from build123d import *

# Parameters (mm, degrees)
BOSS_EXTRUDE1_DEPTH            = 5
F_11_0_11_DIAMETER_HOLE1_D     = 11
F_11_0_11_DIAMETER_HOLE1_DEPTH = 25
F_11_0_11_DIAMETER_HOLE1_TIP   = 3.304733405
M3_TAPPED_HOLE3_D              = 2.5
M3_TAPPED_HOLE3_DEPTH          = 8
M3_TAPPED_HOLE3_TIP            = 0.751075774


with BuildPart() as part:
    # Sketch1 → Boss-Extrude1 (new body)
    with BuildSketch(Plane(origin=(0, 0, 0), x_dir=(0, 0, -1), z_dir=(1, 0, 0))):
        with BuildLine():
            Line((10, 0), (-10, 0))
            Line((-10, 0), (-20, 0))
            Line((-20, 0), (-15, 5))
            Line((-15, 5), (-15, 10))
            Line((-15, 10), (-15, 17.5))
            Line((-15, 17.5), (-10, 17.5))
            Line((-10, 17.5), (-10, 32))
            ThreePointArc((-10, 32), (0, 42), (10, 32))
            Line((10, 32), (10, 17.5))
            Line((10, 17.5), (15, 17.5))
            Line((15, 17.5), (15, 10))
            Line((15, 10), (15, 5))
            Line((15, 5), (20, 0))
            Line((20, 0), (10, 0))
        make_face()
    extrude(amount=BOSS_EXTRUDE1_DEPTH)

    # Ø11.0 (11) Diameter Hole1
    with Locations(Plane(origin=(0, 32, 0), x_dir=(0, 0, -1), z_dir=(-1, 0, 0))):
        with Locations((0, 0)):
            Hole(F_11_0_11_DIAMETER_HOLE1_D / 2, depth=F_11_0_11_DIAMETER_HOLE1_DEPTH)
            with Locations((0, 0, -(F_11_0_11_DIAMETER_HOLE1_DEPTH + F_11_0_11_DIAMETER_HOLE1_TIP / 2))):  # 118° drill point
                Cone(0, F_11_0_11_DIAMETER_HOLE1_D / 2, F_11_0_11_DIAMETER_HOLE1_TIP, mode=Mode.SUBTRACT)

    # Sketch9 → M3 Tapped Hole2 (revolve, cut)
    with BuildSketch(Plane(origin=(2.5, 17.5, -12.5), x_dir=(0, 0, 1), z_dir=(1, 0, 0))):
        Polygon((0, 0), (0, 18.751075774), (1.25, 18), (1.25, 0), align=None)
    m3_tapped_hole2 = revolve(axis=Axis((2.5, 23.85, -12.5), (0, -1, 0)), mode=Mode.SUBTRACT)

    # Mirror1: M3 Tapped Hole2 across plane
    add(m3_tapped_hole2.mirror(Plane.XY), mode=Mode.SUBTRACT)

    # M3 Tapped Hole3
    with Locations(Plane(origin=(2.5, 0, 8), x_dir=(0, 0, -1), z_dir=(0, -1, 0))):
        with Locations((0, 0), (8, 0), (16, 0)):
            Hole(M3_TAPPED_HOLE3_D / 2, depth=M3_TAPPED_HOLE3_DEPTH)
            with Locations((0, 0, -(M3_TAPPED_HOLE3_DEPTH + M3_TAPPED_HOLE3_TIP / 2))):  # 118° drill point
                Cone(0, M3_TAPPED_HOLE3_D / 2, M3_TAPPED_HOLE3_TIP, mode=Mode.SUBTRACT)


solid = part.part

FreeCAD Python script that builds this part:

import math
import FreeCAD as App
import Part
import Sketcher
from FreeCAD import Vector
Q = App.Units.Quantity


def add_polygon(sketch, points):
    """Adds a closed chain of lines whose ends are joined by coincident constraints."""
    first, n = sketch.GeometryCount, len(points)
    for a, b in zip(points, points[1:] + points[:1]):
        sketch.addGeometry(Part.LineSegment(App.Vector(*a, 0), App.Vector(*b, 0)), False)
    for i in range(n):
        sketch.addConstraint(Sketcher.Constraint("Coincident", first + i, 2, first + (i + 1) % n, 1))

doc = App.newDocument("Part")
body = doc.addObject("PartDesign::Body", "Body")

# Sketch on YZ plane
sketch1 = body.newObject("Sketcher::SketchObject", "Sketch")
sketch1.AttachmentSupport = (doc.getObject("YZ_Plane"), [""])
sketch1.MapMode = "FlatFace"
sketch1.addGeometry(Part.LineSegment(Vector(5, 15, 0), Vector(0, 20, 0)), False)
sketch1.addGeometry(Part.LineSegment(Vector(0, 20, 0), Vector(0, -20, 0)), False)
sketch1.addGeometry(Part.LineSegment(Vector(0, -20, 0), Vector(5, -15, 0)), False)
sketch1.addGeometry(Part.LineSegment(Vector(5, -15, 0), Vector(18, -15, 0)), False)
sketch1.addGeometry(Part.LineSegment(Vector(18, -15, 0), Vector(18, -10, 0)), False)
sketch1.addGeometry(Part.LineSegment(Vector(18, -10, 0), Vector(32, -10, 0)), False)
sketch1.addGeometry(Part.ArcOfCircle(Part.Circle(Vector(32, 0, 0), Vector(0, 0, 1), 10), math.radians(-90), math.radians(90)), False)
sketch1.addGeometry(Part.LineSegment(Vector(32, 10, 0), Vector(18, 10, 0)), False)
sketch1.addGeometry(Part.LineSegment(Vector(18, 10, 0), Vector(18, 15, 0)), False)
sketch1.addGeometry(Part.LineSegment(Vector(18, 15, 0), Vector(5, 15, 0)), False)
sketch1.addConstraint(Sketcher.Constraint("Coincident", 0, 2, 1, 1))
sketch1.addConstraint(Sketcher.Constraint("Coincident", 1, 2, 2, 1))
sketch1.addConstraint(Sketcher.Constraint("Coincident", 2, 2, 3, 1))
sketch1.addConstraint(Sketcher.Constraint("Coincident", 3, 2, 4, 1))
sketch1.addConstraint(Sketcher.Constraint("Coincident", 4, 2, 5, 1))
sketch1.addConstraint(Sketcher.Constraint("Tangent", 5, 2, 6, 1))
sketch1.addConstraint(Sketcher.Constraint("Tangent", 6, 2, 7, 1))
sketch1.addConstraint(Sketcher.Constraint("Coincident", 7, 2, 8, 1))
sketch1.addConstraint(Sketcher.Constraint("Coincident", 8, 2, 9, 1))
sketch1.addConstraint(Sketcher.Constraint("Coincident", 9, 2, 0, 1))
sketch1.addConstraint(Sketcher.Constraint("Vertical", 1))
sketch1.addConstraint(Sketcher.Constraint("Horizontal", 3))
sketch1.addConstraint(Sketcher.Constraint("Vertical", 4))
sketch1.addConstraint(Sketcher.Constraint("Horizontal", 5))
sketch1.addConstraint(Sketcher.Constraint("Horizontal", 7))
sketch1.addConstraint(Sketcher.Constraint("Vertical", 8))
sketch1.addConstraint(Sketcher.Constraint("Horizontal", 9))
sketch1.addConstraint(Sketcher.Constraint("Symmetric", 0, 2, 1, 2, -1, 1))
sketch1.addConstraint(Sketcher.Constraint("Symmetric", 4, 2, 7, 2, -1))
sketch1.addConstraint(Sketcher.Constraint("Symmetric", 2, 2, 9, 2, -1))
sketch1.addConstraint(Sketcher.Constraint("Perpendicular", 0, 2))
sketch1.addConstraint(Sketcher.Constraint("Radius", 6, 10.0))
sketch1.addConstraint(Sketcher.Constraint("DistanceY", 1, 2, 1, 1, 40.0))
sketch1.addConstraint(Sketcher.Constraint("DistanceY", 4, 1, 4, 2, 5.0))
sketch1.addConstraint(Sketcher.Constraint("DistanceX", 3, 1, 3, 2, 12.5))
sketch1.addConstraint(Sketcher.Constraint("DistanceX", 5, 1, 5, 2, 14.5))
pad1 = body.newObject("PartDesign::Pad", "Pad")
pad1.Profile = sketch1
pad1.Length = 5

# Sketch on YZ plane
sketch2 = body.newObject("Sketcher::SketchObject", "Sketch001")
sketch2.AttachmentSupport = (doc.getObject("YZ_Plane"), [""])
sketch2.MapMode = "FlatFace"
sketch2.addGeometry(Part.Circle(Vector(32, 0, 0), Vector(0, 0, 1), 6), False)
sketch2.addConstraint(Sketcher.Constraint("PointOnObject", 0, 3, -1))
sketch2.addConstraint(Sketcher.Constraint("Diameter", 0, 11.0))
sketch2.addConstraint(Sketcher.Constraint("DistanceX", -1, 1, 0, 3, 32.0))
doc.recompute()
hole = body.newObject("PartDesign::Hole", "Hole")
hole.Profile = sketch2
hole.ThreadType = "None"
hole.Diameter = 11
hole.DepthType = "Dimension"
hole.Depth = 25
hole.DrillPoint = "Angled"
hole.DrillPointAngle = 118
hole.Reversed = True

# Sketch on YZ plane
sketch3 = body.newObject("Sketcher::SketchObject", "Sketch002")
sketch3.AttachmentSupport = (doc.getObject("YZ_Plane"), [""])
sketch3.MapMode = "FlatFace"
sketch3.AttachmentOffset = App.Placement(Vector(0, 0, 2.5), App.Rotation())
add_polygon(sketch3, [(-1.3, -12.5), (17.5, -12.5), (17.5, -11.2), (-0.5, -11.2)])  # lines 0-3
sketch3.addGeometry(Part.LineSegment(Vector(17.5, -12.5, 0), Vector(-1.3, -12.5, 0)), True)  # axis
sketch3.addConstraint(Sketcher.Constraint("Horizontal", 0))
sketch3.addConstraint(Sketcher.Constraint("Vertical", 1))
sketch3.addConstraint(Sketcher.Constraint("Horizontal", 2))
sketch3.addConstraint(Sketcher.Constraint("Horizontal", 4))
sketch3.addConstraint(Sketcher.Constraint("Coincident", 4, 1, 0, 2))
sketch3.addConstraint(Sketcher.Constraint("Equal", 0, 4))
sketch3.addConstraint(Sketcher.Constraint("DistanceX", 2, 2, 2, 1, 18.0))
sketch3.addConstraint(Sketcher.Constraint("Angle", 3, Q("-121 deg")))
sketch3.addConstraint(Sketcher.Constraint("DistanceY", 1, 1, 1, 2, 1.25))
sketch3.addConstraint(Sketcher.Constraint("DistanceX", -1, 1, 0, 2, 17.5))
sketch3.addConstraint(Sketcher.Constraint("DistanceY", 0, 2, -1, 1, 12.5))
groove = body.newObject("PartDesign::Groove", "Groove")
groove.Profile = sketch3
groove.ReferenceAxis = (sketch3, ["Axis0"])
groove.Angle = 360
doc.recompute()

mirrored = body.newObject("PartDesign::Mirrored", "Mirrored")
mirrored.Originals = [groove]
mirrored.MirrorPlane = (doc.getObject("XY_Plane"), [""])
body.Tip = mirrored

# Sketch on XZ plane
sketch4 = body.newObject("Sketcher::SketchObject", "Sketch003")
sketch4.AttachmentSupport = (doc.getObject("XZ_Plane"), [""])
sketch4.MapMode = "FlatFace"
sketch4.addGeometry(Part.Circle(Vector(2.5, 8, 0), Vector(0, 0, 1), 1.2), False)
sketch4.addGeometry(Part.Circle(Vector(2.5, 0, 0), Vector(0, 0, 1), 1.2), False)
sketch4.addGeometry(Part.Circle(Vector(2.5, -8, 0), Vector(0, 0, 1), 1.2), False)
sketch4.addConstraint(Sketcher.Constraint("Equal", 0, 1))
sketch4.addConstraint(Sketcher.Constraint("Equal", 1, 2))
sketch4.addConstraint(Sketcher.Constraint("Symmetric", 0, 3, 2, 3, -1))
sketch4.addConstraint(Sketcher.Constraint("PointOnObject", 1, 3, -1))
sketch4.addConstraint(Sketcher.Constraint("Vertical", 0, 3, 1, 3))
sketch4.addConstraint(Sketcher.Constraint("Diameter", 0, 2.5))
sketch4.addConstraint(Sketcher.Constraint("DistanceY", -1, 1, 0, 3, 8.0))
sketch4.addConstraint(Sketcher.Constraint("DistanceX", -1, 1, 0, 3, 2.5))
doc.recompute()
hole2 = body.newObject("PartDesign::Hole", "Hole001")
hole2.Profile = sketch4
hole2.ThreadType = "None"
hole2.Diameter = 2.5
hole2.DepthType = "Dimension"
hole2.Depth = 8
hole2.DrillPoint = "Angled"
hole2.DrillPointAngle = 118

doc.recompute()
